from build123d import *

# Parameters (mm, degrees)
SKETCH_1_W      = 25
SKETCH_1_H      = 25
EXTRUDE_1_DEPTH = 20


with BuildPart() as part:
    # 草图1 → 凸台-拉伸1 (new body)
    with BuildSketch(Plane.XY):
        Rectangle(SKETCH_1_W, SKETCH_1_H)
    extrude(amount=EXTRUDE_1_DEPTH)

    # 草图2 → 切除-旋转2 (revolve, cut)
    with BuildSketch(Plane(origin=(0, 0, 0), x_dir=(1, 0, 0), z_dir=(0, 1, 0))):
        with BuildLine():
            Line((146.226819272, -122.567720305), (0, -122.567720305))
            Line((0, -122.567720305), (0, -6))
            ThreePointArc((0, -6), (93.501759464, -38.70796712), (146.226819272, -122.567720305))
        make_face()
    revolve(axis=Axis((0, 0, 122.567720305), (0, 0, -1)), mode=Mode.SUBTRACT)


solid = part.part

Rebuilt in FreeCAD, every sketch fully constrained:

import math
import FreeCAD as App
import Part
import Sketcher

V = App.Vector

doc = App.newDocument("Part")
body = doc.addObject("PartDesign::Body", "Body")

sketch1 = body.newObject("Sketcher::SketchObject", "Sketch")
sketch1.AttachmentSupport = (doc.getObject("XY_Plane"), [""])
sketch1.MapMode = "FlatFace"
sketch1.addGeometry(Part.LineSegment(V(-12.5, 12.5, 0), V(-12.5, -12.5, 0)), False)
sketch1.addGeometry(Part.LineSegment(V(-12.5, -12.5, 0), V(12.5, -12.5, 0)), False)
sketch1.addGeometry(Part.LineSegment(V(12.5, -12.5, 0), V(12.5, 12.5, 0)), False)
sketch1.addGeometry(Part.LineSegment(V(12.5, 12.5, 0), V(-12.5, 12.5, 0)), False)
sketch1.addConstraint(Sketcher.Constraint("Coincident", 0, 2, 1, 1))
sketch1.addConstraint(Sketcher.Constraint("Coincident", 1, 2, 2, 1))
sketch1.addConstraint(Sketcher.Constraint("Coincident", 2, 2, 3, 1))
sketch1.addConstraint(Sketcher.Constraint("Coincident", 3, 2, 0, 1))
sketch1.addConstraint(Sketcher.Constraint("Vertical", 0))
sketch1.addConstraint(Sketcher.Constraint("Horizontal", 1))
sketch1.addConstraint(Sketcher.Constraint("Vertical", 2))
sketch1.addConstraint(Sketcher.Constraint("Horizontal", 3))
sketch1.addConstraint(Sketcher.Constraint("Symmetric", 0, 2, 2, 2, -1, 1))
sketch1.addConstraint(Sketcher.Constraint("Equal", 3, 0))
sketch1.addConstraint(Sketcher.Constraint("DistanceX", 1, 1, 1, 2, 25.0))
pad1 = body.newObject("PartDesign::Pad", "Pad")
pad1.Profile = sketch1
pad1.Length = 20

sketch2 = body.newObject("Sketcher::SketchObject", "Sketch001")
sketch2.AttachmentSupport = (doc.getObject("XZ_Plane"), [""])
sketch2.MapMode = "FlatFace"
sketch2.addGeometry(Part.LineSegment(V(0, 122.56772, 0), V(146.226819, 122.56772, 0)), False)
sketch2.addGeometry(Part.ArcOfCircle(Part.Circle(V(0, 156, 0), V(0, 0, 1), 150), math.radians(-90), math.radians(-12.878355)), False)
sketch2.addGeometry(Part.LineSegment(V(0, 6, 0), V(0, 122.56772, 0)), False)
sketch2.addConstraint(Sketcher.Constraint("Coincident", 0, 2, 1, 2))
sketch2.addConstraint(Sketcher.Constraint("Coincident", 1, 1, 2, 1))
sketch2.addConstraint(Sketcher.Constraint("Coincident", 2, 2, 0, 1))
sketch2.addConstraint(Sketcher.Constraint("Horizontal", 0))
sketch2.addConstraint(Sketcher.Constraint("Vertical", 2))
sketch2.addConstraint(Sketcher.Constraint("PointOnObject", 1, 3, -2))
sketch2.addConstraint(Sketcher.Constraint("PointOnObject", 1, 1, -2))
sketch2.addConstraint(Sketcher.Constraint("Radius", 1, 150.0))
sketch2.addConstraint(Sketcher.Constraint("DistanceY", -1, 1, 1, 3, 156.0))
sketch2.addConstraint(Sketcher.Constraint("DistanceX", 0, 1, 0, 2, 146.226819))
groove = body.newObject("PartDesign::Groove", "Groove")
groove.Profile = sketch2
groove.ReferenceAxis = (sketch2, ["V_Axis"])
groove.Angle = 360

doc.recompute()
